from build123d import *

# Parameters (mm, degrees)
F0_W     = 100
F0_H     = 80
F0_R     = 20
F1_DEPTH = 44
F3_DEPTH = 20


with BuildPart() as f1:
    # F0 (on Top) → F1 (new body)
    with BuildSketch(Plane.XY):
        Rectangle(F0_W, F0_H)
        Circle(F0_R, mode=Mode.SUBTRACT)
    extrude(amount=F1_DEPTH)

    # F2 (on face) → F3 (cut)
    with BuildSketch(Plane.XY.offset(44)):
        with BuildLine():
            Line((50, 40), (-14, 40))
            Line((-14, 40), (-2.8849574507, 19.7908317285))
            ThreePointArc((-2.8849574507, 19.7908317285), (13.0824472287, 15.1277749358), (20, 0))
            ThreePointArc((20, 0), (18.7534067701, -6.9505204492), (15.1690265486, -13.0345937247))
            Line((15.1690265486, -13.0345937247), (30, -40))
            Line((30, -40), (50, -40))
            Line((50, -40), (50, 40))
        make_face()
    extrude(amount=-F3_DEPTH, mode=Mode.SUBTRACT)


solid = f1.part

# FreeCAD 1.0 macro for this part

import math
import FreeCAD as App
import Part
import Sketcher
from FreeCAD import Vector
Q = App.Units.Quantity


def add_polygon(sketch, points):
    """Adds a closed chain of lines whose ends are joined by coincident constraints."""
    first, n = sketch.GeometryCount, len(points)
    for a, b in zip(points, points[1:] + points[:1]):
        sketch.addGeometry(Part.LineSegment(App.Vector(*a, 0), App.Vector(*b, 0)), False)
    for i in range(n):
        sketch.addConstraint(Sketcher.Constraint("Coincident", first + i, 2, first + (i + 1) % n, 1))

doc = App.newDocument("Part")
body = doc.addObject("PartDesign::Body", "Body")

sketch1 = body.newObject("Sketcher::SketchObject", "Sketch")
sketch1.AttachmentSupport = (doc.getObject("XY_Plane"), [""])
sketch1.MapMode = "FlatFace"
add_polygon(sketch1, [(-50, 40), (-50, -40), (50, -40), (50, 40)])
sketch1.addGeometry(Part.Circle(Vector(0, 0, 0), Vector(0, 0, 1), 20), False)
sketch1.addConstraint(Sketcher.Constraint("Vertical", 0))
sketch1.addConstraint(Sketcher.Constraint("Horizontal", 1))
sketch1.addConstraint(Sketcher.Constraint("Vertical", 2))
sketch1.addConstraint(Sketcher.Constraint("Horizontal", 3))
sketch1.addConstraint(Sketcher.Constraint("Coincident", 4, 3, -1, 1))
sketch1.addConstraint(Sketcher.Constraint("Symmetric", 0, 2, 2, 2, -1, 1))
sketch1.addConstraint(Sketcher.Constraint("Diameter", 4, Q("40 mm")))
sketch1.addConstraint(Sketcher.Constraint("DistanceX", 1, 1, 1, 2, Q("100 mm")))
sketch1.addConstraint(Sketcher.Constraint("DistanceY", 0, 2, 0, 1, Q("80 mm")))
pad1 = body.newObject("PartDesign::Pad", "Pad")
pad1.Profile = sketch1
pad1.Length = 44

sketch2 = body.newObject("Sketcher::SketchObject", "Sketch001")
sketch2.AttachmentSupport = (doc.getObject("XY_Plane"), [""])
sketch2.MapMode = "FlatFace"
sketch2.AttachmentOffset = App.Placement(Vector(0, 0, 44), App.Rotation())
sketch2.addGeometry(Part.LineSegment(Vector(50, 40, 0), Vector(-14, 40, 0)), False)
sketch2.addGeometry(Part.LineSegment(Vector(-14, 40, 0), Vector(-2.884957, 19.790832, 0)), False)
sketch2.addGeometry(Part.ArcOfCircle(Part.Circle(Vector(0, 0, 0), Vector(0, 0, 1), 20), math.radians(0), math.radians(98.293728)), False)
sketch2.addGeometry(Part.ArcOfCircle(Part.Circle(Vector(0, 0, 0), Vector(0, 0, 1), 20), math.radians(-40.67214), math.radians(0)), False)
sketch2.addGeometry(Part.LineSegment(Vector(15.169027, -13.034594, 0), Vector(30, -40, 0)), False)
sketch2.addGeometry(Part.LineSegment(Vector(30, -40, 0), Vector(50, -40, 0)), False)
sketch2.addGeometry(Part.LineSegment(Vector(50, -40, 0), Vector(50, 40, 0)), False)
sketch2.addConstraint(Sketcher.Constraint("Coincident", 0, 2, 1, 1))
sketch2.addConstraint(Sketcher.Constraint("Coincident", 1, 2, 2, 2))
sketch2.addConstraint(Sketcher.Constraint("Tangent", 2, 1, 3, 2))
sketch2.addConstraint(Sketcher.Constraint("Coincident", 3, 1, 4, 1))
sketch2.addConstraint(Sketcher.Constraint("Coincident", 4, 2, 5, 1))
sketch2.addConstraint(Sketcher.Constraint("Coincident", 5, 2, 6, 1))
sketch2.addConstraint(Sketcher.Constraint("Coincident", 6, 2, 0, 1))
sketch2.addConstraint(Sketcher.Constraint("Horizontal", 0))
sketch2.addConstraint(Sketcher.Constraint("Horizontal", 5))
sketch2.addConstraint(Sketcher.Constraint("Vertical", 6))
sketch2.addConstraint(Sketcher.Constraint("Coincident", 2, 3, -1, 1))
sketch2.addConstraint(Sketcher.Constraint("Equal", 2, 3))
sketch2.addConstraint(Sketcher.Constraint("PointOnObject", 2, 1, -1))
sketch2.addConstraint(Sketcher.Constraint("Parallel", 1, 4))
sketch2.addConstraint(Sketcher.Constraint("Radius", 2, Q("20 mm")))
sketch2.addConstraint(Sketcher.Constraint("DistanceX", 0, 2, 0, 1, Q("64 mm")))
sketch2.addConstraint(Sketcher.Constraint("DistanceX", 5, 1, 5, 2, Q("20 mm")))
sketch2.addConstraint(Sketcher.Constraint("DistanceY", 6, 1, 6, 2, Q("80 mm")))
sketch2.addConstraint(Sketcher.Constraint("DistanceX", 0, 2, -1, 1, Q("14 mm")))
sketch2.addConstraint(Sketcher.Constraint("DistanceY", -1, 1, 0, 2, Q("40 mm")))
sketch2.addConstraint(Sketcher.Constraint("DistanceY", -1, 1, 1, 2, Q("19.790832 mm")))
pocket1 = body.newObject("PartDesign::Pocket", "Pocket")
pocket1.Profile = sketch2
pocket1.Length = 20

doc.recompute()
